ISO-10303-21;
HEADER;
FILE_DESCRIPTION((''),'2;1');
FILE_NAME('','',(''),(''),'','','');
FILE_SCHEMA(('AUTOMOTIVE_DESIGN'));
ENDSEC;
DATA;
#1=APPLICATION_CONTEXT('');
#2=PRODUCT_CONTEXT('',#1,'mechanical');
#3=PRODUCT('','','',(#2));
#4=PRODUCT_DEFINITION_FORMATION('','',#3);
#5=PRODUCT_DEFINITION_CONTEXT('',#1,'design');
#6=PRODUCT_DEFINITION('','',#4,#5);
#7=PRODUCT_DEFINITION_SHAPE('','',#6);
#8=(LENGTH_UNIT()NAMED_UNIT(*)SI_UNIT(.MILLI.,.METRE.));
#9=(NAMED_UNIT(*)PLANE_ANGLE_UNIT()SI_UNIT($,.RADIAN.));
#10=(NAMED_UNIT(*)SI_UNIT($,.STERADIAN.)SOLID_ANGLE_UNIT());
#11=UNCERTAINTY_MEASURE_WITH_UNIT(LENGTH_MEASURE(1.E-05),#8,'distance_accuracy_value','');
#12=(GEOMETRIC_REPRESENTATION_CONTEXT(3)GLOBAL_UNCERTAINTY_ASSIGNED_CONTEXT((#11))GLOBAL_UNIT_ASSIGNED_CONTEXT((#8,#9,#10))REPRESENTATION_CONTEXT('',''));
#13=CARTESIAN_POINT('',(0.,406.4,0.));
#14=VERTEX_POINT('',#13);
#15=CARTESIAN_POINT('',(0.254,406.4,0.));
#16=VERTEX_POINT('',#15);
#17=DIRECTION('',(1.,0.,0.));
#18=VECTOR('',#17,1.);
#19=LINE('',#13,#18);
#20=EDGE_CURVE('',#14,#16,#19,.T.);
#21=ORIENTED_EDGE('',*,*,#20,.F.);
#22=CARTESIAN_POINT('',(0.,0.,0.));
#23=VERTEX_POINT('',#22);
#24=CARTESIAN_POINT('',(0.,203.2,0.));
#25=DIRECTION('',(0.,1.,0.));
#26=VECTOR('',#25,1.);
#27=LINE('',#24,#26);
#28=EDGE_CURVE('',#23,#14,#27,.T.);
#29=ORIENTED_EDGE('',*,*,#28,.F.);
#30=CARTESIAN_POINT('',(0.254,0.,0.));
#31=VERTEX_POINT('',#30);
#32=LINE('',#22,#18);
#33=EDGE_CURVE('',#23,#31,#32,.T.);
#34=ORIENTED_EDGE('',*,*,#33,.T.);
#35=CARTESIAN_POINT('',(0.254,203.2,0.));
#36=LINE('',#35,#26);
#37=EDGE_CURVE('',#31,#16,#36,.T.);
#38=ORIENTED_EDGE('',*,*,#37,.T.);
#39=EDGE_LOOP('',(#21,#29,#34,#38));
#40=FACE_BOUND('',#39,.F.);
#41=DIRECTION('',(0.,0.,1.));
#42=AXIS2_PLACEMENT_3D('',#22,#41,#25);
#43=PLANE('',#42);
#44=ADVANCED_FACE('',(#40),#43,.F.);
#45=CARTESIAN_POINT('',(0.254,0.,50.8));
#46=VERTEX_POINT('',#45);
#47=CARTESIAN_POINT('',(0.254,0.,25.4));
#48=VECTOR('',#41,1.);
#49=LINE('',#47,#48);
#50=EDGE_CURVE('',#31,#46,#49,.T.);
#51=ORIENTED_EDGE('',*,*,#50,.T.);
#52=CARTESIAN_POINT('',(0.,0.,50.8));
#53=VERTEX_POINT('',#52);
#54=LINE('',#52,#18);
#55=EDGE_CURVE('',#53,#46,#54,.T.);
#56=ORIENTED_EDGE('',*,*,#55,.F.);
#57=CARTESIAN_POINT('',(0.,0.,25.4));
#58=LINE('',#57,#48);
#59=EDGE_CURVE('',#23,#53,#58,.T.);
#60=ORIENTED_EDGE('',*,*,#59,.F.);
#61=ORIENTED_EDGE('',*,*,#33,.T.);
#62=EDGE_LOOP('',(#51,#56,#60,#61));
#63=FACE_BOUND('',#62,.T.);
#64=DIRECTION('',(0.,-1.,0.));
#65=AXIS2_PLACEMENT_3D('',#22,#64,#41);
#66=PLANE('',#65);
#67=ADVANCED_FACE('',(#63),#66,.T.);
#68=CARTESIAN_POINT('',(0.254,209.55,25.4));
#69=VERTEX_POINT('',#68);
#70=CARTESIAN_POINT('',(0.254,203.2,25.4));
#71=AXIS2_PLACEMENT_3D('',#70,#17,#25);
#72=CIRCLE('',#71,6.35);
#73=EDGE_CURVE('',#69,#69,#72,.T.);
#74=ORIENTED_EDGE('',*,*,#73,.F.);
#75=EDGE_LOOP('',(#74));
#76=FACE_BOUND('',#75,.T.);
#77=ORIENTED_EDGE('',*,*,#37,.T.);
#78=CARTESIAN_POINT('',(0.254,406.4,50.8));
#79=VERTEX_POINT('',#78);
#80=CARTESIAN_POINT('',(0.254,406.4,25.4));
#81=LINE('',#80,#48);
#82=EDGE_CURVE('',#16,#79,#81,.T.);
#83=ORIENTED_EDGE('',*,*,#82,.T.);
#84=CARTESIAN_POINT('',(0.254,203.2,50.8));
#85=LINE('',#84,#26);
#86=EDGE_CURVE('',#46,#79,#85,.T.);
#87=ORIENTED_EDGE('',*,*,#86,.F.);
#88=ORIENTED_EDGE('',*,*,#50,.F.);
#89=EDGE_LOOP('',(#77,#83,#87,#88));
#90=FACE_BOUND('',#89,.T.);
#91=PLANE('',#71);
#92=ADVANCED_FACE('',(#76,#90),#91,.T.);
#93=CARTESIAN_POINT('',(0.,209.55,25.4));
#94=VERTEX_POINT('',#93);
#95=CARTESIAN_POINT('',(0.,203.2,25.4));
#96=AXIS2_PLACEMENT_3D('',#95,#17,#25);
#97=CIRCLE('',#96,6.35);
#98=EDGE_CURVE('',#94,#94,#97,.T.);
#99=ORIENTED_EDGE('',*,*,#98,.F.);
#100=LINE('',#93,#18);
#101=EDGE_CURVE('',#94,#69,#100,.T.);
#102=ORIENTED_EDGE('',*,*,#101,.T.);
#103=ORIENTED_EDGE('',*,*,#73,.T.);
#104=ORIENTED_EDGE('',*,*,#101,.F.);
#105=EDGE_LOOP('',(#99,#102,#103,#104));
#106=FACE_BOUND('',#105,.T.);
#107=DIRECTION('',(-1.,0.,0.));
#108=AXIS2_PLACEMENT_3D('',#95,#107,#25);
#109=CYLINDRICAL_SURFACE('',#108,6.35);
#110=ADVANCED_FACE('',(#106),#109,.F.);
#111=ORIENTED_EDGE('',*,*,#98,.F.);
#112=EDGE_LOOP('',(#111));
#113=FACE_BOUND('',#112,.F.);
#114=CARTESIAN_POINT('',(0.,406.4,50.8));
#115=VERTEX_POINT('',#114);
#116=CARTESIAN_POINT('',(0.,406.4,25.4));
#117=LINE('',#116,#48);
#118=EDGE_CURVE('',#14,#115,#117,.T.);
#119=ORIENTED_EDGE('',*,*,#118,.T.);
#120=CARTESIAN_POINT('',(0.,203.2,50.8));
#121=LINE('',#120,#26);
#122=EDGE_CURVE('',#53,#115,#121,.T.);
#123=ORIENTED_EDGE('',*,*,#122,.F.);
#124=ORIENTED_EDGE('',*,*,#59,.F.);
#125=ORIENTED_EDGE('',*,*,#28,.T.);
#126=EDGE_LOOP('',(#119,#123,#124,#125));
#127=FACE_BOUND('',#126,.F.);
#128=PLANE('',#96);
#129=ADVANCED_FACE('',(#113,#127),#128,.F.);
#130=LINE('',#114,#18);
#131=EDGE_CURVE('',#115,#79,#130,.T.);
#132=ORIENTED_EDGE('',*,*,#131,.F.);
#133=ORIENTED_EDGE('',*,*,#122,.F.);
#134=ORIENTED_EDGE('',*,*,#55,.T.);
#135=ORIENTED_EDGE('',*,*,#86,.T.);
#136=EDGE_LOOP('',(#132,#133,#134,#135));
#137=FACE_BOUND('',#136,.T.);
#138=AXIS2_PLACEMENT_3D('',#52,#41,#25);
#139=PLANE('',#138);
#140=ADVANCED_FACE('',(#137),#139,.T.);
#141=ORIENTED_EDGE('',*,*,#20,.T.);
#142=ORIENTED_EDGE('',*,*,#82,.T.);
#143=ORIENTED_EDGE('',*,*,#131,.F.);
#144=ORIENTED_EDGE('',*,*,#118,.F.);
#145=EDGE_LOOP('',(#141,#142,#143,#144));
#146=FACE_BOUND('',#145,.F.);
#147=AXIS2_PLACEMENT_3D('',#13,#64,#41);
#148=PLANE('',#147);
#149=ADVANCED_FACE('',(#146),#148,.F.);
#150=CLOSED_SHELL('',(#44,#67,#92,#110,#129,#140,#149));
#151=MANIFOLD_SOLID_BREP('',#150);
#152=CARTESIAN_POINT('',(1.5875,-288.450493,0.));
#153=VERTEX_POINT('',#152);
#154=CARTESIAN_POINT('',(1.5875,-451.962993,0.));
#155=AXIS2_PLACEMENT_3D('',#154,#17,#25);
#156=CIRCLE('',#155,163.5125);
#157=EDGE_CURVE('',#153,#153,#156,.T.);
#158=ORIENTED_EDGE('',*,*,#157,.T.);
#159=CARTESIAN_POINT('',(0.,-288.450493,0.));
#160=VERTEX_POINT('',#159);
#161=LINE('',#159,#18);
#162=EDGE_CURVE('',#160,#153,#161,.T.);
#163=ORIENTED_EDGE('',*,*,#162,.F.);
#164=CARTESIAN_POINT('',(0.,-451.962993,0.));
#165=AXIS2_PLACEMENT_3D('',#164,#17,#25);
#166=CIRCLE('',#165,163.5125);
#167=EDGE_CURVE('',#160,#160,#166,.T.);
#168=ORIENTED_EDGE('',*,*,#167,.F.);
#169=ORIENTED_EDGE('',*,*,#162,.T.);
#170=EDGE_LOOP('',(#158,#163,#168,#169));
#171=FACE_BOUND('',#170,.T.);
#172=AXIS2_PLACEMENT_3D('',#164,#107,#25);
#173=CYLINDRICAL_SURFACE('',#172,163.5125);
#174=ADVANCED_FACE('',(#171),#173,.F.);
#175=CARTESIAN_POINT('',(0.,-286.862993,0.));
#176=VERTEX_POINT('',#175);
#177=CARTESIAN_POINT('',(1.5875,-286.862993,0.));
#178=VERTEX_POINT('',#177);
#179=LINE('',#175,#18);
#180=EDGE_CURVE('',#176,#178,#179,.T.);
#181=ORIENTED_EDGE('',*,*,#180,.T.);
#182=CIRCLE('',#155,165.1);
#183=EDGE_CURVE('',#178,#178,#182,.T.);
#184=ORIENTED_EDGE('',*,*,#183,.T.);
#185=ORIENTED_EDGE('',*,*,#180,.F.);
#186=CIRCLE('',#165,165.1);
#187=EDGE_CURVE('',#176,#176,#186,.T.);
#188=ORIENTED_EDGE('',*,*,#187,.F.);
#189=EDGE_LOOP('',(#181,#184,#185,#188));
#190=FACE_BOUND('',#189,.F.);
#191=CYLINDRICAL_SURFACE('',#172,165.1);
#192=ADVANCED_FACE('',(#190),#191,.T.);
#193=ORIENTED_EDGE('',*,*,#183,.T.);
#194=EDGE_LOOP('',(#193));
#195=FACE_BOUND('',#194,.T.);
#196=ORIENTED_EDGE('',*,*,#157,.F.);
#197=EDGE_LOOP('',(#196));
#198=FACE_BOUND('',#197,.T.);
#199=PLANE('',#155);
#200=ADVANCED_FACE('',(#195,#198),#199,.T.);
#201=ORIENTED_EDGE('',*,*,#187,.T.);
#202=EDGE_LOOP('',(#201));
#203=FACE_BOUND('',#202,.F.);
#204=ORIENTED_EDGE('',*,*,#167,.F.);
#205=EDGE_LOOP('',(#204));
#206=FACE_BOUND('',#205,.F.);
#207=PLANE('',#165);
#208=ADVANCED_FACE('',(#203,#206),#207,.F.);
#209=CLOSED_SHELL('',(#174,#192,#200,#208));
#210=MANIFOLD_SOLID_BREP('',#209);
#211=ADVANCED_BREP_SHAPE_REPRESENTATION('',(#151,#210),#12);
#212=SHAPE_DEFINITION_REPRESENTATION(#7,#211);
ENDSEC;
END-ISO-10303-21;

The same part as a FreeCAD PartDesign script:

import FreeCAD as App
import Part
import Sketcher
Q = App.Units.Quantity


def add_polygon(sketch, points):
    """Adds a closed chain of lines whose ends are joined by coincident constraints."""
    first, n = sketch.GeometryCount, len(points)
    for a, b in zip(points, points[1:] + points[:1]):
        sketch.addGeometry(Part.LineSegment(App.Vector(*a, 0), App.Vector(*b, 0)), False)
    for i in range(n):
        sketch.addConstraint(Sketcher.Constraint("Coincident", first + i, 2, first + (i + 1) % n, 1))

doc = App.newDocument("Part")
params = doc.addObject("Spreadsheet::Sheet", "Params")
for row, (alias, value) in enumerate([
    ("sketch1_diameter", "0.5 in"),
    ("sketch1_width", "16 in"),
    ("sketch1_height", "2 in"),
    ("pad1_length", "0.01 in"),
    ("sketch2_diameter", "13 in"),
    ("sketch2_diameter2", "12.875 in"),
    ("pad2_length", "0.0625 in"),
], start=1):
    params.set(f"A{row}", alias)
    params.set(f"B{row}", "=" + value)
    params.setAlias(f"B{row}", alias)

body = doc.addObject("PartDesign::Body", "Body")

# Sketch on YZ plane
sketch1 = body.newObject("Sketcher::SketchObject", "Sketch")
sketch1.AttachmentSupport = (doc.getObject("YZ_Plane"), [""])
sketch1.MapMode = "FlatFace"
add_polygon(sketch1, [(0, 51), (0, 0), (406, 0), (406, 51)])  # lines 0-3
sketch1.addGeometry(Part.Circle(App.Vector(203, 25, 0), App.Vector(0, 0, 1), 6), False)  # 4
sketch1.addConstraint([
    Sketcher.Constraint("Vertical", 0),
    Sketcher.Constraint("Horizontal", 1),
    Sketcher.Constraint("Vertical", 2),
    Sketcher.Constraint("Horizontal", 3),
    Sketcher.Constraint("Coincident", 0, 2, -1, 1),
    Sketcher.Constraint("Diameter", 4, Q("0.5 in")),
    Sketcher.Constraint("DistanceX", 1, 1, 1, 2, Q("16 in")),
    Sketcher.Constraint("DistanceY", 0, 2, 0, 1, Q("2 in")),
    Sketcher.Constraint("DistanceX", -1, 1, 4, 3, Q("8 in")),
    Sketcher.Constraint("DistanceY", -1, 1, 4, 3, Q("1 in")),
])
sketch1.setExpression("Constraints[9]", "Params.sketch1_diameter")
sketch1.setExpression("Constraints[10]", "Params.sketch1_width")
sketch1.setExpression("Constraints[11]", "Params.sketch1_height")
pad1 = body.newObject("PartDesign::Pad", "Pad")
pad1.Profile = sketch1
pad1.setExpression("Length", "Params.pad1_length")
body2 = doc.addObject("PartDesign::Body", "Body001")

# Sketch on YZ plane
sketch2 = body2.newObject("Sketcher::SketchObject", "Sketch001")
sketch2.AttachmentSupport = (doc.getObject("YZ_Plane001"), [""])
sketch2.MapMode = "FlatFace"
sketch2.addGeometry([
    Part.Circle(App.Vector(-452, 0, 0), App.Vector(0, 0, 1), 165),
    Part.Circle(App.Vector(-452, 0, 0), App.Vector(0, 0, 1), 164),
], False)
sketch2.addConstraint([
    Sketcher.Constraint("Coincident", 1, 3, 0, 3),
    Sketcher.Constraint("PointOnObject", 0, 3, -1),
    Sketcher.Constraint("Diameter", 0, Q("13 in")),
    Sketcher.Constraint("Diameter", 1, Q("12.875 in")),
    Sketcher.Constraint("DistanceX", 0, 3, -1, 1, 451.962993),
])
sketch2.setExpression("Constraints[2]", "Params.sketch2_diameter")
sketch2.setExpression("Constraints[3]", "Params.sketch2_diameter2")
pad2 = body2.newObject("PartDesign::Pad", "Pad001")
pad2.Profile = sketch2
pad2.setExpression("Length", "Params.pad2_length")

doc.recompute()
